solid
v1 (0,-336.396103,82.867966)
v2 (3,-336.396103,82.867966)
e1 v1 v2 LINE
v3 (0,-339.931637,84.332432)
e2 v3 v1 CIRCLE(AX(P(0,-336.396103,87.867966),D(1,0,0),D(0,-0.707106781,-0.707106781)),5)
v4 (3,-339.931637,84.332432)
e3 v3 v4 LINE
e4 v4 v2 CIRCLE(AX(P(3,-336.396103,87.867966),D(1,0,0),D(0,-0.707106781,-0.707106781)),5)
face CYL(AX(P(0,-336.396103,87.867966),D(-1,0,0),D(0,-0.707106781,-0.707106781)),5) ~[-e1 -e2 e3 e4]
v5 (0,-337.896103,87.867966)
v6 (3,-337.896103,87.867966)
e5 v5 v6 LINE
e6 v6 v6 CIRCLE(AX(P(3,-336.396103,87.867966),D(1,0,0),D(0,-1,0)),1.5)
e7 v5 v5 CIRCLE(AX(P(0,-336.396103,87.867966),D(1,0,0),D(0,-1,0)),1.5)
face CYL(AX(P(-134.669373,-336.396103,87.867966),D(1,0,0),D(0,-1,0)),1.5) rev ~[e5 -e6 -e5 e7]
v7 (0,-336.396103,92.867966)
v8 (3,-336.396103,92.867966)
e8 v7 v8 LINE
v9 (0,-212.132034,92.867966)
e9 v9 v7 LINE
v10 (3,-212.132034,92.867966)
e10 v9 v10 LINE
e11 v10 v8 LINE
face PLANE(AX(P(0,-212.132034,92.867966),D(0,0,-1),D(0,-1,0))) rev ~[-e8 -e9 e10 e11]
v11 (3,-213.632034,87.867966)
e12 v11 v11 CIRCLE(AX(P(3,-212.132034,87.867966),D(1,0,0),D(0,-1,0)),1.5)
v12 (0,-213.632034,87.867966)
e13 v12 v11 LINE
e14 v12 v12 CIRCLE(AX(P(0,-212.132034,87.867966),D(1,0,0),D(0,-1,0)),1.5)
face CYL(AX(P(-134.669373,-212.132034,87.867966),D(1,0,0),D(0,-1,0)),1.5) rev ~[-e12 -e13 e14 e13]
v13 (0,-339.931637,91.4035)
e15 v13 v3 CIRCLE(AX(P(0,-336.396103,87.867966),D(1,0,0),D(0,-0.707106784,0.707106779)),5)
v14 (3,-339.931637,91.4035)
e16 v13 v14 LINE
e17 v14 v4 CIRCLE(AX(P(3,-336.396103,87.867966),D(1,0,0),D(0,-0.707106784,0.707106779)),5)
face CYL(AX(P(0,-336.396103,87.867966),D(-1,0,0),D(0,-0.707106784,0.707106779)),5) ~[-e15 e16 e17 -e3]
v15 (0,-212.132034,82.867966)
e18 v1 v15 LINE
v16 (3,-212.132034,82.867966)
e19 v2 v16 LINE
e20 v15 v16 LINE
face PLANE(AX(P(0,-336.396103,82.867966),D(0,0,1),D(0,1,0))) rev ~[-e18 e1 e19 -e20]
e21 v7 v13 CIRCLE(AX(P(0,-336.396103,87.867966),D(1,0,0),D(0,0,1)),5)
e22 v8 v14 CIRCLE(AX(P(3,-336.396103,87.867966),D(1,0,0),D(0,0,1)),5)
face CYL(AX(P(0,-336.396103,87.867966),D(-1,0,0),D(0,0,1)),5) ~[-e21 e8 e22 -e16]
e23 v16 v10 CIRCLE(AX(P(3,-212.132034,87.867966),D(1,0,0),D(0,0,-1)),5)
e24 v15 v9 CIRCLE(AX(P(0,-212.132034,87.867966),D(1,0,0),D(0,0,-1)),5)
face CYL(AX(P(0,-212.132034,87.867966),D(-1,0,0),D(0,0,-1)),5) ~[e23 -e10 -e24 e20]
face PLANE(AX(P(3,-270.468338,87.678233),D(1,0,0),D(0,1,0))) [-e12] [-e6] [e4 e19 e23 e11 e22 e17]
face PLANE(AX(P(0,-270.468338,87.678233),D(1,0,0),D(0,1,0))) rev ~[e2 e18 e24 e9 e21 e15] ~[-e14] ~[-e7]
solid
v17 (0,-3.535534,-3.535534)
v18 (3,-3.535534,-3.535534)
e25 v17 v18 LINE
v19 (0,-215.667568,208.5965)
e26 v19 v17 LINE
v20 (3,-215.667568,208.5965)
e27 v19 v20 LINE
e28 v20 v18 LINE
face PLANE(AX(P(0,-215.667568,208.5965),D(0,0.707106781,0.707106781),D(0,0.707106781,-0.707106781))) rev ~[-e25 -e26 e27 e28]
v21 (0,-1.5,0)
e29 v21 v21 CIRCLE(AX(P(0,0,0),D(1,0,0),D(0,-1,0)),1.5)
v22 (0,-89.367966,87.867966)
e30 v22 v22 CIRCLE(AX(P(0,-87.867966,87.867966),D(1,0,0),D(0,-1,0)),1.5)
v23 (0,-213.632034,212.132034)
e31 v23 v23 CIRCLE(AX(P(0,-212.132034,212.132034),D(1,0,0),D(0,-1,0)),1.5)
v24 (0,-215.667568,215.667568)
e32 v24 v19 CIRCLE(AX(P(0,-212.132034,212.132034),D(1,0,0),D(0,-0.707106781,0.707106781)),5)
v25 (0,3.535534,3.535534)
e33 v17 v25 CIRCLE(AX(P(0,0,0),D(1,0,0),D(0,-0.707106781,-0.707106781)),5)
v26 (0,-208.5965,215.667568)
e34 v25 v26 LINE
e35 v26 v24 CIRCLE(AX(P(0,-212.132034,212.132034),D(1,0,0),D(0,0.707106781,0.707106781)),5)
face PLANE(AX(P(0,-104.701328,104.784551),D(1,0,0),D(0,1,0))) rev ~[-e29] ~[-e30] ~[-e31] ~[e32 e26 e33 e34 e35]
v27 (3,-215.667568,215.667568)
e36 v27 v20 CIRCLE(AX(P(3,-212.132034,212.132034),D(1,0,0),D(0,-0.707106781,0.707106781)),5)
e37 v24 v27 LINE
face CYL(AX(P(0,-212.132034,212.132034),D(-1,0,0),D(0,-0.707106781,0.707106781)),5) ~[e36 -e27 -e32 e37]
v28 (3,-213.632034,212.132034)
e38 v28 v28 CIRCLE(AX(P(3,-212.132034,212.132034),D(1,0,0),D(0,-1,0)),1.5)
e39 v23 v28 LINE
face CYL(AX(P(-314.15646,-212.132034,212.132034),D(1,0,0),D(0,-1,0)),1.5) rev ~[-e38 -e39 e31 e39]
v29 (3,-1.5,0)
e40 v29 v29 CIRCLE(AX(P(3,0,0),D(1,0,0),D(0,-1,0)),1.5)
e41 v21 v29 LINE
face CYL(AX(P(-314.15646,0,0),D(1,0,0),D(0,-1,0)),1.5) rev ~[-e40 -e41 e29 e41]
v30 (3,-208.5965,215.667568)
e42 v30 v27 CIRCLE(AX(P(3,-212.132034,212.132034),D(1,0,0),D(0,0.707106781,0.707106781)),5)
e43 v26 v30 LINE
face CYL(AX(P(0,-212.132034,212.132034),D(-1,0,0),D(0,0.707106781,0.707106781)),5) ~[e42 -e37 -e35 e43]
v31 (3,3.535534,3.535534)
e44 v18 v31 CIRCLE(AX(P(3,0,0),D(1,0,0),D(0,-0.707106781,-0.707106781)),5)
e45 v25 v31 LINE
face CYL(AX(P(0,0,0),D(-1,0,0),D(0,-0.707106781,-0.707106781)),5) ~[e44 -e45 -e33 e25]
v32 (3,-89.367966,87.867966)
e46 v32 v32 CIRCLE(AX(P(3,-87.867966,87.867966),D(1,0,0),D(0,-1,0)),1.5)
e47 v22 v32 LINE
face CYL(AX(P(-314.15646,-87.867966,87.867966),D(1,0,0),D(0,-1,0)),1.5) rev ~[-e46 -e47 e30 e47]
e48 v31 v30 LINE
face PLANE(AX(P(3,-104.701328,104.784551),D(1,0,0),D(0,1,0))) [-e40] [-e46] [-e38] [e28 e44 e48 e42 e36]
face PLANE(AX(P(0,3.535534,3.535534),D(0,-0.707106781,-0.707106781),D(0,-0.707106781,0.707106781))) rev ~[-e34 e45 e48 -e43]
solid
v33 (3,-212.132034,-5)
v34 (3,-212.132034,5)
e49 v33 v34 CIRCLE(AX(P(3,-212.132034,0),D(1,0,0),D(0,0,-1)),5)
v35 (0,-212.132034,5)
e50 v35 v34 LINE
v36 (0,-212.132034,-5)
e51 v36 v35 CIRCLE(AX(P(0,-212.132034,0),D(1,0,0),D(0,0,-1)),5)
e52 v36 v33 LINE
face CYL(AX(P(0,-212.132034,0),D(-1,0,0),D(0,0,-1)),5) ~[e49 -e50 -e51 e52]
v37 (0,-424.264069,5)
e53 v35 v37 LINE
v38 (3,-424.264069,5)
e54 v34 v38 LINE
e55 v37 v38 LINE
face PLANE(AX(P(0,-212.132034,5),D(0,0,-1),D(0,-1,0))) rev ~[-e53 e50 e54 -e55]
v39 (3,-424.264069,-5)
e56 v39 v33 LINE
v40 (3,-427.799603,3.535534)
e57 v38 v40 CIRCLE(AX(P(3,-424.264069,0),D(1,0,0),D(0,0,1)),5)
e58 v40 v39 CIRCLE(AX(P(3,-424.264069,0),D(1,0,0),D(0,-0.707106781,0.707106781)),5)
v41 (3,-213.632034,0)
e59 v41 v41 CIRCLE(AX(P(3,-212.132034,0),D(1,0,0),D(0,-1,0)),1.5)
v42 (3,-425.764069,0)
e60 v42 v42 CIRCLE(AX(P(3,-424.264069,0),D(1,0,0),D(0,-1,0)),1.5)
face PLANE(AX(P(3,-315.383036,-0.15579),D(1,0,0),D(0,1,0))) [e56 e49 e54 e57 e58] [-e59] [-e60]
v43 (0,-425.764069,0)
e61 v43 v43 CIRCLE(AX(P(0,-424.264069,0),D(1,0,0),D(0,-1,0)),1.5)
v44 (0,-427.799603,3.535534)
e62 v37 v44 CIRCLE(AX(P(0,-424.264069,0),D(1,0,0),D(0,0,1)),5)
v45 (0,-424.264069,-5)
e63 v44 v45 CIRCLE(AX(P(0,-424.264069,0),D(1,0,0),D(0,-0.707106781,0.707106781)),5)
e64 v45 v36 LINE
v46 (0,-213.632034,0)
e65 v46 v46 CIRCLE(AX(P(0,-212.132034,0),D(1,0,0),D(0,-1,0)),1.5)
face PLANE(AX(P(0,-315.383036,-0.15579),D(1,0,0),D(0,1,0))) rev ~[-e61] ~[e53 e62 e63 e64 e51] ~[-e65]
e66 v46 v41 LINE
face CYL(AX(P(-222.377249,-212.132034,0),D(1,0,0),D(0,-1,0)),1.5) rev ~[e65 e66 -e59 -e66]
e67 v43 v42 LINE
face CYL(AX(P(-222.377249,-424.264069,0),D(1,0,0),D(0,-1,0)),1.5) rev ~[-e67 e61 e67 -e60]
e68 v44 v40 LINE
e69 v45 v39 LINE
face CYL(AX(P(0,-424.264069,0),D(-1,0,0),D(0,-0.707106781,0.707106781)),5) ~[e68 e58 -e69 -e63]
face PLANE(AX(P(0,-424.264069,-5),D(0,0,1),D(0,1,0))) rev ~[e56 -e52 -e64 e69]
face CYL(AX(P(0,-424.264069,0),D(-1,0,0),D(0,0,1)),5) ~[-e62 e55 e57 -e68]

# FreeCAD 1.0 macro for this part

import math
import FreeCAD as App
import Part
import Sketcher
Q = App.Units.Quantity

doc = App.newDocument("Part")
body = doc.addObject("PartDesign::Body", "Body")

# Sketch on YZ plane
sketch1 = body.newObject("Sketcher::SketchObject", "Sketch")
sketch1.AttachmentSupport = (doc.getObject("YZ_Plane"), [""])
sketch1.MapMode = "FlatFace"
sketch1.addGeometry([
    Part.LineSegment(App.Vector(-216, 209, 0), App.Vector(-4, -4, 0)),  # 0
    Part.ArcOfCircle(Part.Circle(App.Vector(0, 0, 0), App.Vector(0, 0, 1), 5), math.radians(-135), math.radians(45)),  # 1
    Part.LineSegment(App.Vector(4, 4, 0), App.Vector(-209, 216, 0)),  # 2
    Part.ArcOfCircle(Part.Circle(App.Vector(-212, 212, 0), App.Vector(0, 0, 1), 5), math.radians(45), math.radians(135)),  # 3
    Part.ArcOfCircle(Part.Circle(App.Vector(-212, 212, 0), App.Vector(0, 0, 1), 5), math.radians(135), math.radians(225)),  # 4
], False)
sketch1.addConstraint([
    Sketcher.Constraint("Tangent", 0, 2, 1, 1),
    Sketcher.Constraint("Tangent", 1, 2, 2, 1),
    Sketcher.Constraint("Tangent", 2, 2, 3, 1),
    Sketcher.Constraint("Tangent", 3, 2, 4, 1),
    Sketcher.Constraint("Tangent", 4, 2, 0, 1),
    Sketcher.Constraint("Coincident", 1, 3, -1, 1),
    Sketcher.Constraint("Equal", 1, 3),
    Sketcher.Constraint("Equal", 3, 4),
    Sketcher.Constraint("Horizontal", 2, 2, 3, 2),
    Sketcher.Constraint("Radius", 1, 5.0),
    Sketcher.Constraint("Angle", 0, Q("-45 deg")),
    Sketcher.Constraint("Distance", 0, 300.0),
])
pad1 = body.newObject("PartDesign::Pad", "Pad")
pad1.Profile = sketch1
pad1.Length = 3

# Sketch on YZ plane
sketch2 = body.newObject("Sketcher::SketchObject", "Sketch001")
sketch2.AttachmentSupport = (doc.getObject("YZ_Plane"), [""])
sketch2.MapMode = "FlatFace"
sketch2.addGeometry([
    Part.Circle(App.Vector(-212.1, 0, 0), App.Vector(0, 0, 1), 1.5),
    Part.Circle(App.Vector(-424.3, 0, 0), App.Vector(0, 0, 1), 1.5),
    Part.Circle(App.Vector(0, 0, 0), App.Vector(0, 0, 1), 1.5),
    Part.Circle(App.Vector(-212.1, 212.1, 0), App.Vector(0, 0, 1), 1.5),
], False)
sketch2.addConstraint([
    Sketcher.Constraint("Coincident", 2, 3, -1, 1),
    Sketcher.Constraint("Equal", 0, 1),
    Sketcher.Constraint("Equal", 1, 2),
    Sketcher.Constraint("Equal", 2, 3),
    Sketcher.Constraint("PointOnObject", 0, 3, -1),
    Sketcher.Constraint("PointOnObject", 1, 3, -1),
    Sketcher.Constraint("Vertical", 0, 3, 3, 3),
    Sketcher.Constraint("Diameter", 0, 3.0),
    Sketcher.Constraint("DistanceX", 1, 3, -1, 1, 424.264069),
    Sketcher.Constraint("DistanceX", 0, 3, -1, 1, 212.132034),
    Sketcher.Constraint("DistanceY", -1, 1, 3, 3, 212.132034),
])
doc.recompute()
hole = body.newObject("PartDesign::Hole", "Hole")
hole.Profile = sketch2
hole.ThreadType = "None"
hole.Diameter = 3
hole.DepthType = "ThroughAll"
hole.Reversed = True

# Sketch on YZ plane
sketch3 = body.newObject("Sketcher::SketchObject", "Sketch002")
sketch3.AttachmentSupport = (doc.getObject("YZ_Plane"), [""])
sketch3.MapMode = "FlatFace"
sketch3.addGeometry(Part.Circle(App.Vector(-87.9, 87.9, 0), App.Vector(0, 0, 1), 1.5), False)
sketch3.addConstraint([
    Sketcher.Constraint("Diameter", 0, 3.0),
    Sketcher.Constraint("DistanceX", 0, 3, -1, 1, 87.867966),
    Sketcher.Constraint("DistanceY", -1, 1, 0, 3, 87.867966),
])
doc.recompute()
hole2 = body.newObject("PartDesign::Hole", "Hole001")
hole2.Profile = sketch3
hole2.ThreadType = "None"
hole2.Diameter = 3
hole2.DepthType = "ThroughAll"
hole2.Reversed = True
body2 = doc.addObject("PartDesign::Body", "Body001")

# Sketch on YZ plane
sketch4 = body2.newObject("Sketcher::SketchObject", "Sketch003")
sketch4.AttachmentSupport = (doc.getObject("YZ_Plane001"), [""])
sketch4.MapMode = "FlatFace"
sketch4.addGeometry([
    Part.LineSegment(App.Vector(-424.3, -5, 0), App.Vector(-212.1, -5, 0)),  # 0
    Part.ArcOfCircle(Part.Circle(App.Vector(-212.1, 0, 0), App.Vector(0, 0, 1), 5), math.radians(-90), math.radians(90)),  # 1
    Part.LineSegment(App.Vector(-212.1, 5, 0), App.Vector(-424.3, 5, 0)),  # 2
    Part.ArcOfCircle(Part.Circle(App.Vector(-424.3, 0, 0), App.Vector(0, 0, 1), 5), math.radians(90), math.radians(135)),  # 3
    Part.ArcOfCircle(Part.Circle(App.Vector(-424.3, 0, 0), App.Vector(0, 0, 1), 5), math.radians(135), math.radians(270)),  # 4
], False)
sketch4.addConstraint([
    Sketcher.Constraint("Tangent", 0, 2, 1, 1),
    Sketcher.Constraint("Tangent", 1, 2, 2, 1),
    Sketcher.Constraint("Tangent", 2, 2, 3, 1),
    Sketcher.Constraint("Tangent", 3, 2, 4, 1),
    Sketcher.Constraint("Tangent", 4, 2, 0, 1),
    Sketcher.Constraint("Horizontal", 0),
    Sketcher.Constraint("Horizontal", 2),
    Sketcher.Constraint("Equal", 1, 3),
    Sketcher.Constraint("PointOnObject", 1, 3, -1),
    Sketcher.Constraint("Radius", 1, 5.0),
    Sketcher.Constraint("DistanceX", 0, 1, 0, 2, 212.132034),
    Sketcher.Constraint("DistanceX", 3, 3, -1, 1, 424.264069),
    Sketcher.Constraint("DistanceX", 3, 2, 1, 2, 215.667568),
])
pad2 = body2.newObject("PartDesign::Pad", "Pad001")
pad2.Profile = sketch4
pad2.Length = 3

# Sketch on YZ plane
sketch5 = body2.newObject("Sketcher::SketchObject", "Sketch004")
sketch5.AttachmentSupport = (doc.getObject("YZ_Plane001"), [""])
sketch5.MapMode = "FlatFace"
sketch5.addGeometry([
    Part.Circle(App.Vector(-212.1, 0, 0), App.Vector(0, 0, 1), 1.5),
    Part.Circle(App.Vector(-424.3, 0, 0), App.Vector(0, 0, 1), 1.5),
    Part.Circle(App.Vector(0, 0, 0), App.Vector(0, 0, 1), 1.5),
    Part.Circle(App.Vector(-212.1, 212.1, 0), App.Vector(0, 0, 1), 1.5),
], False)
sketch5.addConstraint([
    Sketcher.Constraint("Coincident", 2, 3, -1, 1),
    Sketcher.Constraint("Equal", 0, 1),
    Sketcher.Constraint("Equal", 1, 2),
    Sketcher.Constraint("Equal", 2, 3),
    Sketcher.Constraint("PointOnObject", 0, 3, -1),
    Sketcher.Constraint("PointOnObject", 1, 3, -1),
    Sketcher.Constraint("Vertical", 0, 3, 3, 3),
    Sketcher.Constraint("Diameter", 0, 3.0),
    Sketcher.Constraint("DistanceX", 1, 3, -1, 1, 424.264069),
    Sketcher.Constraint("DistanceX", 0, 3, -1, 1, 212.132034),
    Sketcher.Constraint("DistanceY", -1, 1, 3, 3, 212.132034),
])
doc.recompute()
hole3 = body2.newObject("PartDesign::Hole", "Hole002")
hole3.Profile = sketch5
hole3.ThreadType = "None"
hole3.Diameter = 3
hole3.DepthType = "ThroughAll"
hole3.Reversed = True
body3 = doc.addObject("PartDesign::Body", "Body002")

# Sketch on YZ plane
sketch6 = body3.newObject("Sketcher::SketchObject", "Sketch005")
sketch6.AttachmentSupport = (doc.getObject("YZ_Plane002"), [""])
sketch6.MapMode = "FlatFace"
sketch6.addGeometry([
    Part.LineSegment(App.Vector(-212.1, 92.9, 0), App.Vector(-336.4, 92.9, 0)),  # 0
    Part.ArcOfCircle(Part.Circle(App.Vector(-336.4, 87.9, 0), App.Vector(0, 0, 1), 5), math.radians(90), math.radians(135)),  # 1
    Part.ArcOfCircle(Part.Circle(App.Vector(-336.4, 87.9, 0), App.Vector(0, 0, 1), 5), math.radians(135), math.radians(225)),  # 2
    Part.ArcOfCircle(Part.Circle(App.Vector(-336.4, 87.9, 0), App.Vector(0, 0, 1), 5), math.radians(-135), math.radians(-90)),  # 3
    Part.LineSegment(App.Vector(-336.4, 82.9, 0), App.Vector(-212.1, 82.9, 0)),  # 4
    Part.ArcOfCircle(Part.Circle(App.Vector(-212.1, 87.9, 0), App.Vector(0, 0, 1), 5), math.radians(-90), math.radians(90)),  # 5
], False)
sketch6.addConstraint([
    Sketcher.Constraint("Tangent", 0, 2, 1, 1),
    Sketcher.Constraint("Tangent", 1, 2, 2, 1),
    Sketcher.Constraint("Tangent", 2, 2, 3, 1),
    Sketcher.Constraint("Tangent", 3, 2, 4, 1),
    Sketcher.Constraint("Tangent", 4, 2, 5, 1),
    Sketcher.Constraint("Tangent", 5, 2, 0, 1),
    Sketcher.Constraint("Horizontal", 0),
    Sketcher.Constraint("Horizontal", 4),
    Sketcher.Constraint("Coincident", 3, 3, 1, 3),
    Sketcher.Constraint("Vertical", 1, 2, 2, 2),
    Sketcher.Constraint("Radius", 1, 5.0),
    Sketcher.Constraint("DistanceX", 0, 2, 0, 1, 124.264069),
    Sketcher.Constraint("DistanceY", -1, 1, 1, 2, 91.4035),
    Sketcher.Constraint("DistanceY", -1, 1, 2, 2, 84.332432),
    Sketcher.Constraint("DistanceX", 1, 3, -1, 1, 336.396103),
])
pad3 = body3.newObject("PartDesign::Pad", "Pad002")
pad3.Profile = sketch6
pad3.Length = 3

# Sketch on YZ plane
sketch7 = body3.newObject("Sketcher::SketchObject", "Sketch006")
sketch7.AttachmentSupport = (doc.getObject("YZ_Plane002"), [""])
sketch7.MapMode = "FlatFace"
sketch7.addGeometry([
    Part.Circle(App.Vector(-336.4, 87.9, 0), App.Vector(0, 0, 1), 1.5),
    Part.Circle(App.Vector(-212.1, 87.9, 0), App.Vector(0, 0, 1), 1.5),
], False)
sketch7.addConstraint([
    Sketcher.Constraint("Equal", 0, 1),
    Sketcher.Constraint("Horizontal", 0, 3, 1, 3),
    Sketcher.Constraint("Diameter", 0, 3.0),
    Sketcher.Constraint("DistanceX", 0, 3, 1, 3, 124.264069),
    Sketcher.Constraint("DistanceX", 0, 3, -1, 1, 336.396103),
    Sketcher.Constraint("DistanceY", -1, 1, 0, 3, 87.867966),
])
doc.recompute()
hole4 = body3.newObject("PartDesign::Hole", "Hole003")
hole4.Profile = sketch7
hole4.ThreadType = "None"
hole4.Diameter = 3
hole4.DepthType = "ThroughAll"
hole4.Reversed = True

doc.recompute()
